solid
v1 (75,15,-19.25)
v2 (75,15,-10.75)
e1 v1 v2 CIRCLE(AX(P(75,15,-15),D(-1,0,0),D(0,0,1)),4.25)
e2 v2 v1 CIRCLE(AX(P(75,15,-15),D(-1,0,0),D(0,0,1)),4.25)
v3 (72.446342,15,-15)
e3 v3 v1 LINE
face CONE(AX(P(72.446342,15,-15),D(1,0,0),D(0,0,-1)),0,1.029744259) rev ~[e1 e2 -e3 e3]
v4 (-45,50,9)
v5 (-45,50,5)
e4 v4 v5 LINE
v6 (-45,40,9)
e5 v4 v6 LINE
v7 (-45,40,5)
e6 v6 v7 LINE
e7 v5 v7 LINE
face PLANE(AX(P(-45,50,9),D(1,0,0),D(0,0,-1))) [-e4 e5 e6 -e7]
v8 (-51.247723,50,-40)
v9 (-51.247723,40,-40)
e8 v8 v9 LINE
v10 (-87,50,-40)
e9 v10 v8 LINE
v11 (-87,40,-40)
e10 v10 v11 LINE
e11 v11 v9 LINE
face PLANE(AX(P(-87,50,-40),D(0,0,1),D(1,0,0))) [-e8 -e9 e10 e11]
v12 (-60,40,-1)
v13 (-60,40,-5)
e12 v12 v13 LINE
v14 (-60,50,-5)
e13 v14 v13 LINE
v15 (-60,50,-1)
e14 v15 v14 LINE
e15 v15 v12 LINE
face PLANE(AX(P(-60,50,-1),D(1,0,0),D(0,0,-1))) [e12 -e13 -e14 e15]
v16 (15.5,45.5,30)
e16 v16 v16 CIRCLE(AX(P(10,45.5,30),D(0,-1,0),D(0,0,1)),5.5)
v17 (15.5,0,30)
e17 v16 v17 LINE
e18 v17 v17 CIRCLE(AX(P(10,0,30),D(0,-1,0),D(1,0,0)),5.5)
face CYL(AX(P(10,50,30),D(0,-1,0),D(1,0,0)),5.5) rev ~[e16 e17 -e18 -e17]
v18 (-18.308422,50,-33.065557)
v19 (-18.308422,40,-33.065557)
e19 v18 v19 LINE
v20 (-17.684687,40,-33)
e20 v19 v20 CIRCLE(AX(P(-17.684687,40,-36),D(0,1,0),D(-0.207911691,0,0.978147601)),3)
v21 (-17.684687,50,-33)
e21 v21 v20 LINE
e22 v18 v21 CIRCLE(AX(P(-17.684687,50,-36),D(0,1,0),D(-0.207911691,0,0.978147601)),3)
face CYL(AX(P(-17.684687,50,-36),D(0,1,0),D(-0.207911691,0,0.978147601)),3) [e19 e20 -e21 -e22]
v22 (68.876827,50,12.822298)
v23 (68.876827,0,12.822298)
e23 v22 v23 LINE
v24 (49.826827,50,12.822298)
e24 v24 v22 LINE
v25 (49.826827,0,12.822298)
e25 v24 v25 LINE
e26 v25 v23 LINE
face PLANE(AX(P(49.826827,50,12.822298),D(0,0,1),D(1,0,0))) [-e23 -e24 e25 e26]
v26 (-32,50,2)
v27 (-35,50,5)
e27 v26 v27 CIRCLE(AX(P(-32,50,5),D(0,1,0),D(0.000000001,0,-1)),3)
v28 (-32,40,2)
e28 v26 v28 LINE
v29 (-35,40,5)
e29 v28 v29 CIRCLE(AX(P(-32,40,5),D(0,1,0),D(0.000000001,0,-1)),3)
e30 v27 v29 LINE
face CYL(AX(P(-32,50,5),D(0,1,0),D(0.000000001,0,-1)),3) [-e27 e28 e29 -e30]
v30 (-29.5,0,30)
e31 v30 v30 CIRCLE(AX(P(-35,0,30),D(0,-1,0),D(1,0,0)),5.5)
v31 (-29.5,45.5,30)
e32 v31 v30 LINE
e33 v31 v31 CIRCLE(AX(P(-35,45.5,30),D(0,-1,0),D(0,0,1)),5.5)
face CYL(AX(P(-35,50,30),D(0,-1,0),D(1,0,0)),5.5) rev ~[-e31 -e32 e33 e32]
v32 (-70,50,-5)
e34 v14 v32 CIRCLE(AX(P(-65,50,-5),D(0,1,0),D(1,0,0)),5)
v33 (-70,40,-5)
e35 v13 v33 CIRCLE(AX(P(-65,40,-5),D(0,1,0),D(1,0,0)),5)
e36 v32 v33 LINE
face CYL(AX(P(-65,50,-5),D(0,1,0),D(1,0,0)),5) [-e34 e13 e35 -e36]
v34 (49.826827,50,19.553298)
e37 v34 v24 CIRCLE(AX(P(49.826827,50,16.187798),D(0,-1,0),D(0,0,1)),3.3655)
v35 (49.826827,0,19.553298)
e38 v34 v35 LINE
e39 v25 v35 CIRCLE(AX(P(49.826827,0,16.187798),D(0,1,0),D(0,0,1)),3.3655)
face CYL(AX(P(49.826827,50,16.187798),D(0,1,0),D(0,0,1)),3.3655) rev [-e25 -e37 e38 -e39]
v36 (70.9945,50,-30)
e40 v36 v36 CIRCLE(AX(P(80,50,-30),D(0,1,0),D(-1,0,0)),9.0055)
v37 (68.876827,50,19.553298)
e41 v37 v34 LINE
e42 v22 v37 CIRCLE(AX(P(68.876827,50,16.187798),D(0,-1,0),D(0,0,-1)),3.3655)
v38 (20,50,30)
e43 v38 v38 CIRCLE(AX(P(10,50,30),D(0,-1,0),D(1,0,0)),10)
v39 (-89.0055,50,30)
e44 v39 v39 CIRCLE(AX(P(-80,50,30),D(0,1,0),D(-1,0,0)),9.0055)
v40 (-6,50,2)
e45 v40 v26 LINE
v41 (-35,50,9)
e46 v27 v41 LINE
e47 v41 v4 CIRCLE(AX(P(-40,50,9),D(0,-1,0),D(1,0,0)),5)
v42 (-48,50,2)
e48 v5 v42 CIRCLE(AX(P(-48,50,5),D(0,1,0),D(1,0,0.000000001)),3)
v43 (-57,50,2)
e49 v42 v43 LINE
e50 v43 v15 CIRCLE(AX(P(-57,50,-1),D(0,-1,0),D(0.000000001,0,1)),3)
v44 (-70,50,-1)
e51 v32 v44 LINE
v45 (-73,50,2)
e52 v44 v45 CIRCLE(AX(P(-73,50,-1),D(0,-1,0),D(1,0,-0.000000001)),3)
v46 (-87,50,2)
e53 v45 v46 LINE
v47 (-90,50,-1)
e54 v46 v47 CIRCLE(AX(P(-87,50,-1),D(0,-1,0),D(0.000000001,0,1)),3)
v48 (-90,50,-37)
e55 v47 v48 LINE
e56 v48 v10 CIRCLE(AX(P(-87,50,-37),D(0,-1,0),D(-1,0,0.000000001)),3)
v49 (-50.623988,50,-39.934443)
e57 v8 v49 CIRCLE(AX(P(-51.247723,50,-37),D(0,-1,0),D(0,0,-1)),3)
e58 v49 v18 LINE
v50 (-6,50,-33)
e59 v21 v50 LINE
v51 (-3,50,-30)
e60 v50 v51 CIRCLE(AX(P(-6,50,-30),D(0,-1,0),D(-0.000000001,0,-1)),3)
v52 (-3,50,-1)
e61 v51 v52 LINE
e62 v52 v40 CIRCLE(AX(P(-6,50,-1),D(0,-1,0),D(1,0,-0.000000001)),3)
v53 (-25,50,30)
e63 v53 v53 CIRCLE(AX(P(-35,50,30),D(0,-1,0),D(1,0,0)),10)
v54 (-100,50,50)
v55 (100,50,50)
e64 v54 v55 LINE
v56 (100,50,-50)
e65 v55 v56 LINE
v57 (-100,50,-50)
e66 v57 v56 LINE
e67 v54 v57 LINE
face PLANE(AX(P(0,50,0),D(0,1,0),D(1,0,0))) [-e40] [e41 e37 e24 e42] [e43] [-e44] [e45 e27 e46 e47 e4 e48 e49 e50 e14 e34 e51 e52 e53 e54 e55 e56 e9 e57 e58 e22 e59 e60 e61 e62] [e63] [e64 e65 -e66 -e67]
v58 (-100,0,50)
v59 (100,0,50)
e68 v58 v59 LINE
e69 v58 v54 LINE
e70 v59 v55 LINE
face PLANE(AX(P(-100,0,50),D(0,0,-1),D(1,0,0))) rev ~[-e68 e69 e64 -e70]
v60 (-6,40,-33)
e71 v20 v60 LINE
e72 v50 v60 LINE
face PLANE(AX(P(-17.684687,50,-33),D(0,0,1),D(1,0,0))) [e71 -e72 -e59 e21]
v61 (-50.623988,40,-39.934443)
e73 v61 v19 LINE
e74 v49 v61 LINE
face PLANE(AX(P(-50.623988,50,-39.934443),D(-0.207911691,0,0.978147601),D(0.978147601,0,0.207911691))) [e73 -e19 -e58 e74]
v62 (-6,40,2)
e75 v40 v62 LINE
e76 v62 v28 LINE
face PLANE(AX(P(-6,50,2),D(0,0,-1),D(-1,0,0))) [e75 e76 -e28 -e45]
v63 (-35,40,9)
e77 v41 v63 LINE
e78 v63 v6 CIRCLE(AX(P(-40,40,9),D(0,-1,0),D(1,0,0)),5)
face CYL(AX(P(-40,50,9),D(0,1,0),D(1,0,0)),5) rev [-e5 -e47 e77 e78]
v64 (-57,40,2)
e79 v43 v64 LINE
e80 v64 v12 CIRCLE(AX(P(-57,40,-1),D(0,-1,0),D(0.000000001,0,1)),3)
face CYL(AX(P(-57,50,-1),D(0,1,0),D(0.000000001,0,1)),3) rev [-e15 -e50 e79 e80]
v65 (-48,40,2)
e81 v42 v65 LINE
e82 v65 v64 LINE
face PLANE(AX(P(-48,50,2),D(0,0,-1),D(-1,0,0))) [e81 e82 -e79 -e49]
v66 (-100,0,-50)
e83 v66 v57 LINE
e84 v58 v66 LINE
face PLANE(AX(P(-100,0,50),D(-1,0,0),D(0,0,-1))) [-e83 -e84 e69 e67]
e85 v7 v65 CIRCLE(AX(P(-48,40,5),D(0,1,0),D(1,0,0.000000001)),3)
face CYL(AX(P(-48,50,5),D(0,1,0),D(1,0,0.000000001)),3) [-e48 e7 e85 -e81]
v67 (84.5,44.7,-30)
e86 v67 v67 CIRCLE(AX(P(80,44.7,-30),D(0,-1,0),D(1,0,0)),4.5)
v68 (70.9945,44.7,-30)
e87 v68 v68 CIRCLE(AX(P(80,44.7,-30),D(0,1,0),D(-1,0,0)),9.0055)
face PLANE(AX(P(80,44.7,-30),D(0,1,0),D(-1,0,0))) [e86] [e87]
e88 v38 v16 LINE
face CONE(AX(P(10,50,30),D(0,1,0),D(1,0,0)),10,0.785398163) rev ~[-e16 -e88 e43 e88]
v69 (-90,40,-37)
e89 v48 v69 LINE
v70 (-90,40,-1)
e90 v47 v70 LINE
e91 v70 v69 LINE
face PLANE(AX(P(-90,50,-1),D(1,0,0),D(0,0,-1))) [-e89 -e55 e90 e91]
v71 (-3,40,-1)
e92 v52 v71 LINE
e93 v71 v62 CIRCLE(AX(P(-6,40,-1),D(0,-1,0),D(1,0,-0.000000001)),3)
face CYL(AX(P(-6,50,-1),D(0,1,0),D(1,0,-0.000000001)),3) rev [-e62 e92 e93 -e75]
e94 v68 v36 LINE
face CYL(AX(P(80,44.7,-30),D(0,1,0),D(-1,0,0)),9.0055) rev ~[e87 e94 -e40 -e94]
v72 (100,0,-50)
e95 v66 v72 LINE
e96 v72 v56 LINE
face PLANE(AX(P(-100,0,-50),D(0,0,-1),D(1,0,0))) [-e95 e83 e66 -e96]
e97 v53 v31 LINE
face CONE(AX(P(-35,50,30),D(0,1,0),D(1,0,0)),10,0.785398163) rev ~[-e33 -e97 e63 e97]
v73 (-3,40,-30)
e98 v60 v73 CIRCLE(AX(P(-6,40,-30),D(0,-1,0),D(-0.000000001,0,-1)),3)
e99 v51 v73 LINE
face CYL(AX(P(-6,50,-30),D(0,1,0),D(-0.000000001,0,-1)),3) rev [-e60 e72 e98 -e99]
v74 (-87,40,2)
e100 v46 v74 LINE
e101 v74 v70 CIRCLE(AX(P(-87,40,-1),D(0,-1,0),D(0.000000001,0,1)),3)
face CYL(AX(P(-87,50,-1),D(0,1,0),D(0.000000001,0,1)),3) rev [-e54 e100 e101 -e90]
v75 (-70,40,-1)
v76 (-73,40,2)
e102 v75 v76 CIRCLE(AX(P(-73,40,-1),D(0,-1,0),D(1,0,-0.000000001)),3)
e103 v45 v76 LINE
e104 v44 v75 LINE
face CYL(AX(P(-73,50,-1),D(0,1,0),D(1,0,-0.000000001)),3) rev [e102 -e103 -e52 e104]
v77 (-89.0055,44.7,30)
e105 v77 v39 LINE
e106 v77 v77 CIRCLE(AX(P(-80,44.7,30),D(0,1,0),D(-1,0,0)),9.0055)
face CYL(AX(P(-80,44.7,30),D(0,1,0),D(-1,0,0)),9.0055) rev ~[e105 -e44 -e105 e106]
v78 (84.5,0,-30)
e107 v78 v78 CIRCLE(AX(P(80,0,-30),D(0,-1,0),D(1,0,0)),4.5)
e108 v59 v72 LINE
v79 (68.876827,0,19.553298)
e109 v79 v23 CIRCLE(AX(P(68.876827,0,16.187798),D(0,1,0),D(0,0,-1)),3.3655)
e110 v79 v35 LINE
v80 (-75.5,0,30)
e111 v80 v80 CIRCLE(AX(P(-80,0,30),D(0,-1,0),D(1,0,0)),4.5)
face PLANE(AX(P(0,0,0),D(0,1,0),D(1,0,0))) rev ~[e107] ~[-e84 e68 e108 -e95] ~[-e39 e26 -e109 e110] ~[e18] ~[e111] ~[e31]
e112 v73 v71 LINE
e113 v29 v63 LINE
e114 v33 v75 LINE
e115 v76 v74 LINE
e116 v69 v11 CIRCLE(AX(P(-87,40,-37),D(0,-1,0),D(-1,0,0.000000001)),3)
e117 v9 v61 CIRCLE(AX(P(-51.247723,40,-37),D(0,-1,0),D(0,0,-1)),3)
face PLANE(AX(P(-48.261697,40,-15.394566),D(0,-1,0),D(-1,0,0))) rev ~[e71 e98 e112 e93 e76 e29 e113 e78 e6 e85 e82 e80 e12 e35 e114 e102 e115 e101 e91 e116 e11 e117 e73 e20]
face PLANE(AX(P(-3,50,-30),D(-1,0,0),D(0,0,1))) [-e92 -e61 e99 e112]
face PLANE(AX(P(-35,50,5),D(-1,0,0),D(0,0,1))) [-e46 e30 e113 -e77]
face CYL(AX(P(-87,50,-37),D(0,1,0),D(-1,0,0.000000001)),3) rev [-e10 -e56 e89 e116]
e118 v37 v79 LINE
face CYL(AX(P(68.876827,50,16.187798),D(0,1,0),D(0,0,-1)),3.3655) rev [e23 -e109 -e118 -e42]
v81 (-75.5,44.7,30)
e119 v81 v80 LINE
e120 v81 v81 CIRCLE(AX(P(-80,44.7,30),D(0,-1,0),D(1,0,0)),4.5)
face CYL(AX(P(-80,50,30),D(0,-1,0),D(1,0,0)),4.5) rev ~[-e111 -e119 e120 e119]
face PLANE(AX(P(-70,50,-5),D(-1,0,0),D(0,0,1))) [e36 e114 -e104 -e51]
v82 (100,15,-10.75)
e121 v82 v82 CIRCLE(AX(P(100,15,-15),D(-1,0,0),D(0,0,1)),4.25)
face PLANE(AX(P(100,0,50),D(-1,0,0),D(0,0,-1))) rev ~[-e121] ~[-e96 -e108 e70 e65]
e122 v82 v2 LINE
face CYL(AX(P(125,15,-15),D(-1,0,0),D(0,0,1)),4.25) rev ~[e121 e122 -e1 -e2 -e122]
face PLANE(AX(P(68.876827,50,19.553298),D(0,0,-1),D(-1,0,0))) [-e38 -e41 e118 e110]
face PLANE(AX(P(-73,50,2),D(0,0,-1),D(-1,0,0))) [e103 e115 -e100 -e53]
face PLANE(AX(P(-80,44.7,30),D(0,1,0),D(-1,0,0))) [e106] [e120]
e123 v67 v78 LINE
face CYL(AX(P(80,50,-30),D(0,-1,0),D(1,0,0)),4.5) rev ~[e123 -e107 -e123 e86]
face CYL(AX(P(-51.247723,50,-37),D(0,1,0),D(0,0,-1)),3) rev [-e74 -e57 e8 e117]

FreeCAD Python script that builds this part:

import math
import FreeCAD as App
import Part
import Sketcher
Q = App.Units.Quantity


def add_polygon(sketch, points):
    """Adds a closed chain of lines whose ends are joined by coincident constraints."""
    first, n = sketch.GeometryCount, len(points)
    for a, b in zip(points, points[1:] + points[:1]):
        sketch.addGeometry(Part.LineSegment(App.Vector(*a, 0), App.Vector(*b, 0)), False)
    for i in range(n):
        sketch.addConstraint(Sketcher.Constraint("Coincident", first + i, 2, first + (i + 1) % n, 1))

doc = App.newDocument("Part")
body = doc.addObject("PartDesign::Body", "Body")

sketch1 = doc.addObject("Sketcher::SketchObject", "Sketch")
body.addObject(sketch1)
sketch1.AttachmentSupport = (doc.XZ_Plane, [""])
sketch1.MapMode = "FlatFace"
add_polygon(sketch1, [(-100, -50), (-100, 50), (100, 50), (100, -50)])
sketch1.addConstraint(Sketcher.Constraint("Vertical", 0))
sketch1.addConstraint(Sketcher.Constraint("Horizontal", 1))
sketch1.addConstraint(Sketcher.Constraint("Vertical", 2))
sketch1.addConstraint(Sketcher.Constraint("Horizontal", 3))
sketch1.addConstraint(Sketcher.Constraint("Symmetric", 0, 2, 2, 2, -1, 1))
sketch1.addConstraint(Sketcher.Constraint("DistanceX", 1, 1, 1, 2, Q("200 mm")))
sketch1.addConstraint(Sketcher.Constraint("DistanceY", 0, 1, 0, 2, Q("100 mm")))
pad1 = doc.addObject("PartDesign::Pad", "Pad")
body.addObject(pad1)
pad1.Profile = sketch1
pad1.Length = 50
pad1.Reversed = True

sketch2 = doc.addObject("Sketcher::SketchObject", "Sketch001")
body.addObject(sketch2)
sketch2.AttachmentSupport = (doc.YZ_Plane, [""])
sketch2.MapMode = "FlatFace"
sketch2.AttachmentOffset = App.Placement(App.Vector(0, 0, 100), App.Rotation())
sketch2.addGeometry(Part.Circle(App.Vector(15, -15, 0), App.Vector(0, 0, 1), 4.25), False)
sketch2.addConstraint(Sketcher.Constraint("Diameter", 0, Q("8.5 mm")))
sketch2.addConstraint(Sketcher.Constraint("DistanceX", -1, 1, 0, 3, Q("15 mm")))
sketch2.addConstraint(Sketcher.Constraint("DistanceY", 0, 3, -1, 1, Q("15 mm")))
doc.recompute()
hole = doc.addObject("PartDesign::Hole", "Hole")
body.addObject(hole)
hole.Profile = sketch2
hole.ThreadType = "None"
hole.Diameter = 8.5
hole.DepthType = "Dimension"
hole.Depth = 25
hole.DrillPoint = "Angled"
hole.DrillPointAngle = 118

sketch3 = doc.addObject("Sketcher::SketchObject", "Sketch002")
body.addObject(sketch3)
sketch3.AttachmentSupport = (doc.XZ_Plane, [""])
sketch3.MapMode = "FlatFace"
sketch3.AttachmentOffset = App.Placement(App.Vector(0, 0, -50), App.Rotation())
sketch3.addGeometry(Part.Circle(App.Vector(-80, 30, 0), App.Vector(0, 0, 1), 4.5), False)
sketch3.addGeometry(Part.Circle(App.Vector(80, -30, 0), App.Vector(0, 0, 1), 4.5), False)
sketch3.addConstraint(Sketcher.Constraint("Equal", 0, 1))
sketch3.addConstraint(Sketcher.Constraint("Symmetric", 0, 3, 1, 3, -1, 1))
sketch3.addConstraint(Sketcher.Constraint("Diameter", 0, Q("9 mm")))
sketch3.addConstraint(Sketcher.Constraint("DistanceX", 0, 3, -1, 1, Q("80 mm")))
sketch3.addConstraint(Sketcher.Constraint("DistanceY", -1, 1, 0, 3, Q("30 mm")))
doc.recompute()
hole2 = doc.addObject("PartDesign::Hole", "Hole001")
body.addObject(hole2)
hole2.Profile = sketch3
hole2.ThreadType = "None"
hole2.Diameter = 9
hole2.DepthType = "ThroughAll"
hole2.HoleCutType = "Counterbore"
hole2.HoleCutDiameter = 18.011
hole2.HoleCutDepth = 5.3
hole2.Reversed = True

sketch4 = doc.addObject("Sketcher::SketchObject", "Sketch003")
body.addObject(sketch4)
sketch4.AttachmentSupport = (doc.XZ_Plane, [""])
sketch4.MapMode = "FlatFace"
sketch4.AttachmentOffset = App.Placement(App.Vector(0, 0, -50), App.Rotation())
sketch4.addGeometry(Part.LineSegment(App.Vector(-51.247723, -40, 0), App.Vector(-87, -40, 0)), False)
sketch4.addGeometry(Part.ArcOfCircle(Part.Circle(App.Vector(-87, -37, 0), App.Vector(0, 0, 1), 3), math.radians(180), math.radians(270)), False)
sketch4.addGeometry(Part.LineSegment(App.Vector(-90, -37, 0), App.Vector(-90, -1, 0)), False)
sketch4.addGeometry(Part.ArcOfCircle(Part.Circle(App.Vector(-87, -1, 0), App.Vector(0, 0, 1), 3), math.radians(90), math.radians(180)), False)
sketch4.addGeometry(Part.LineSegment(App.Vector(-87, 2, 0), App.Vector(-73, 2, 0)), False)
sketch4.addGeometry(Part.ArcOfCircle(Part.Circle(App.Vector(-73, -1, 0), App.Vector(0, 0, 1), 3), math.radians(0), math.radians(90)), False)
sketch4.addGeometry(Part.LineSegment(App.Vector(-70, -1, 0), App.Vector(-70, -5, 0)), False)
sketch4.addGeometry(Part.ArcOfCircle(Part.Circle(App.Vector(-65, -5, 0), App.Vector(0, 0, 1), 5), math.radians(180), math.radians(360)), False)
sketch4.addGeometry(Part.LineSegment(App.Vector(-60, -5, 0), App.Vector(-60, -1, 0)), False)
sketch4.addGeometry(Part.ArcOfCircle(Part.Circle(App.Vector(-57, -1, 0), App.Vector(0, 0, 1), 3), math.radians(90), math.radians(180)), False)
sketch4.addGeometry(Part.LineSegment(App.Vector(-57, 2, 0), App.Vector(-48, 2, 0)), False)
sketch4.addGeometry(Part.ArcOfCircle(Part.Circle(App.Vector(-48, 5, 0), App.Vector(0, 0, 1), 3), math.radians(-90), math.radians(0)), False)
sketch4.addGeometry(Part.LineSegment(App.Vector(-45, 5, 0), App.Vector(-45, 9, 0)), False)
sketch4.addGeometry(Part.ArcOfCircle(Part.Circle(App.Vector(-40, 9, 0), App.Vector(0, 0, 1), 5), math.radians(0), math.radians(180)), False)
sketch4.addGeometry(Part.LineSegment(App.Vector(-35, 9, 0), App.Vector(-35, 5, 0)), False)
sketch4.addGeometry(Part.ArcOfCircle(Part.Circle(App.Vector(-32, 5, 0), App.Vector(0, 0, 1), 3), math.radians(180), math.radians(270)), False)
sketch4.addGeometry(Part.LineSegment(App.Vector(-32, 2, 0), App.Vector(-6, 2, 0)), False)
sketch4.addGeometry(Part.ArcOfCircle(Part.Circle(App.Vector(-6, -1, 0), App.Vector(0, 0, 1), 3), math.radians(0), math.radians(90)), False)
sketch4.addGeometry(Part.LineSegment(App.Vector(-3, -1, 0), App.Vector(-3, -30, 0)), False)
sketch4.addGeometry(Part.ArcOfCircle(Part.Circle(App.Vector(-6, -30, 0), App.Vector(0, 0, 1), 3), math.radians(-90), math.radians(0)), False)
sketch4.addGeometry(Part.LineSegment(App.Vector(-6, -33, 0), App.Vector(-17.684687, -33, 0)), False)
sketch4.addGeometry(Part.ArcOfCircle(Part.Circle(App.Vector(-17.684687, -36, 0), App.Vector(0, 0, 1), 3), math.radians(90), math.radians(102)), False)
sketch4.addGeometry(Part.LineSegment(App.Vector(-18.308422, -33.065557, 0), App.Vector(-50.623988, -39.934443, 0)), False)
sketch4.addGeometry(Part.ArcOfCircle(Part.Circle(App.Vector(-51.247723, -37, 0), App.Vector(0, 0, 1), 3), math.radians(-90), math.radians(-78)), False)
sketch4.addConstraint(Sketcher.Constraint("Tangent", 0, 2, 1, 2))
sketch4.addConstraint(Sketcher.Constraint("Tangent", 1, 1, 2, 1))
sketch4.addConstraint(Sketcher.Constraint("Tangent", 2, 2, 3, 2))
sketch4.addConstraint(Sketcher.Constraint("Tangent", 3, 1, 4, 1))
sketch4.addConstraint(Sketcher.Constraint("Tangent", 4, 2, 5, 2))
sketch4.addConstraint(Sketcher.Constraint("Tangent", 5, 1, 6, 1))
sketch4.addConstraint(Sketcher.Constraint("Tangent", 6, 2, 7, 1))
sketch4.addConstraint(Sketcher.Constraint("Tangent", 7, 2, 8, 1))
sketch4.addConstraint(Sketcher.Constraint("Tangent", 8, 2, 9, 2))
sketch4.addConstraint(Sketcher.Constraint("Tangent", 9, 1, 10, 1))
sketch4.addConstraint(Sketcher.Constraint("Tangent", 10, 2, 11, 1))
sketch4.addConstraint(Sketcher.Constraint("Tangent", 11, 2, 12, 1))
sketch4.addConstraint(Sketcher.Constraint("Tangent", 12, 2, 13, 2))
sketch4.addConstraint(Sketcher.Constraint("Tangent", 13, 1, 14, 1))
sketch4.addConstraint(Sketcher.Constraint("Tangent", 14, 2, 15, 1))
sketch4.addConstraint(Sketcher.Constraint("Tangent", 15, 2, 16, 1))
sketch4.addConstraint(Sketcher.Constraint("Tangent", 16, 2, 17, 2))
sketch4.addConstraint(Sketcher.Constraint("Tangent", 17, 1, 18, 1))
sketch4.addConstraint(Sketcher.Constraint("Tangent", 18, 2, 19, 2))
sketch4.addConstraint(Sketcher.Constraint("Tangent", 19, 1, 20, 1))
sketch4.addConstraint(Sketcher.Constraint("Tangent", 20, 2, 21, 1))
sketch4.addConstraint(Sketcher.Constraint("Tangent", 21, 2, 22, 1))
sketch4.addConstraint(Sketcher.Constraint("Tangent", 22, 2, 23, 2))
sketch4.addConstraint(Sketcher.Constraint("Tangent", 23, 1, 0, 1))
sketch4.addConstraint(Sketcher.Constraint("Horizontal", 0))
sketch4.addConstraint(Sketcher.Constraint("Vertical", 2))
sketch4.addConstraint(Sketcher.Constraint("Horizontal", 4))
sketch4.addConstraint(Sketcher.Constraint("Vertical", 6))
sketch4.addConstraint(Sketcher.Constraint("Vertical", 8))
sketch4.addConstraint(Sketcher.Constraint("Horizontal", 10))
sketch4.addConstraint(Sketcher.Constraint("Vertical", 12))
sketch4.addConstraint(Sketcher.Constraint("Vertical", 14))
sketch4.addConstraint(Sketcher.Constraint("Horizontal", 16))
sketch4.addConstraint(Sketcher.Constraint("Vertical", 18))
sketch4.addConstraint(Sketcher.Constraint("Horizontal", 20))
sketch4.addConstraint(Sketcher.Constraint("Equal", 1, 3))
sketch4.addConstraint(Sketcher.Constraint("Equal", 3, 5))
sketch4.addConstraint(Sketcher.Constraint("Equal", 5, 9))
sketch4.addConstraint(Sketcher.Constraint("Equal", 9, 11))
sketch4.addConstraint(Sketcher.Constraint("Equal", 7, 13))
sketch4.addConstraint(Sketcher.Constraint("Equal", 11, 15))
sketch4.addConstraint(Sketcher.Constraint("Equal", 15, 17))
sketch4.addConstraint(Sketcher.Constraint("Equal", 17, 19))
sketch4.addConstraint(Sketcher.Constraint("Equal", 19, 21))
sketch4.addConstraint(Sketcher.Constraint("Equal", 21, 23))
sketch4.addConstraint(Sketcher.Constraint("Horizontal", 5, 3, 9, 3))
sketch4.addConstraint(Sketcher.Constraint("Horizontal", 11, 3, 15, 3))
sketch4.addConstraint(Sketcher.Constraint("Equal", 8, 12))
sketch4.addConstraint(Sketcher.Constraint("Radius", 1, Q("3 mm")))
sketch4.addConstraint(Sketcher.Constraint("Radius", 7, Q("5 mm")))
sketch4.addConstraint(Sketcher.Constraint("DistanceX", 4, 1, 4, 2, Q("14 mm")))
sketch4.addConstraint(Sketcher.Constraint("DistanceX", 10, 1, 10, 2, Q("9 mm")))
sketch4.addConstraint(Sketcher.Constraint("DistanceX", 16, 1, 16, 2, Q("26 mm")))
sketch4.addConstraint(Sketcher.Constraint("DistanceY", 2, 1, 2, 2, Q("36 mm")))
sketch4.addConstraint(Sketcher.Constraint("DistanceY", 6, 2, 6, 1, Q("4 mm")))
sketch4.addConstraint(Sketcher.Constraint("DistanceY", 18, 2, 18, 1, Q("29 mm")))
sketch4.addConstraint(Sketcher.Constraint("Angle", 22, Q("-168 deg")))
sketch4.addConstraint(Sketcher.Constraint("DistanceX", 1, 3, -1, 1, Q("87 mm")))
sketch4.addConstraint(Sketcher.Constraint("DistanceY", 1, 3, -1, 1, Q("37 mm")))
sketch4.addConstraint(Sketcher.Constraint("DistanceX", 0, 2, 0, 1, Q("35.752277 mm")))
pocket1 = doc.addObject("PartDesign::Pocket", "Pocket")
body.addObject(pocket1)
pocket1.Profile = sketch4
pocket1.Length = 10
pocket1.Reversed = True

sketch5 = doc.addObject("Sketcher::SketchObject", "Sketch004")
body.addObject(sketch5)
sketch5.AttachmentSupport = (doc.XZ_Plane, [""])
sketch5.MapMode = "FlatFace"
sketch5.AttachmentOffset = App.Placement(App.Vector(0, 0, -50), App.Rotation())
sketch5.addGeometry(Part.Circle(App.Vector(10, 30, 0), App.Vector(0, 0, 1), 5.5), False)
sketch5.addGeometry(Part.Circle(App.Vector(-35, 30, 0), App.Vector(0, 0, 1), 5.5), False)
sketch5.addConstraint(Sketcher.Constraint("Equal", 0, 1))
sketch5.addConstraint(Sketcher.Constraint("Horizontal", 0, 3, 1, 3))
sketch5.addConstraint(Sketcher.Constraint("Diameter", 0, Q("11 mm")))
sketch5.addConstraint(Sketcher.Constraint("DistanceX", -1, 1, 0, 3, Q("10 mm")))
sketch5.addConstraint(Sketcher.Constraint("DistanceY", -1, 1, 0, 3, Q("30 mm")))
sketch5.addConstraint(Sketcher.Constraint("DistanceX", 1, 3, -1, 1, Q("35 mm")))
doc.recompute()
hole3 = doc.addObject("PartDesign::Hole", "Hole002")
body.addObject(hole3)
hole3.Profile = sketch5
hole3.ThreadType = "None"
hole3.Diameter = 11
hole3.DepthType = "ThroughAll"
hole3.HoleCutType = "Countersink"
hole3.HoleCutDiameter = 20
hole3.HoleCutCountersinkAngle = 90
hole3.Reversed = True

sketch6 = doc.addObject("Sketcher::SketchObject", "Sketch005")
body.addObject(sketch6)
sketch6.AttachmentSupport = (doc.XZ_Plane, [""])
sketch6.MapMode = "FlatFace"
sketch6.AttachmentOffset = App.Placement(App.Vector(0, 0, -50), App.Rotation())
sketch6.addGeometry(Part.LineSegment(App.Vector(49.826827, 19.553298, 0), App.Vector(68.876827, 19.553298, 0)), False)
sketch6.addGeometry(Part.ArcOfCircle(Part.Circle(App.Vector(68.876827, 16.187798, 0), App.Vector(0, 0, 1), 3.3655), math.radians(-90), math.radians(90)), False)
sketch6.addGeometry(Part.LineSegment(App.Vector(68.876827, 12.822298, 0), App.Vector(49.826827, 12.822298, 0)), False)
sketch6.addGeometry(Part.ArcOfCircle(Part.Circle(App.Vector(49.826827, 16.187798, 0), App.Vector(0, 0, 1), 3.3655), math.radians(90), math.radians(270)), False)
sketch6.addConstraint(Sketcher.Constraint("Tangent", 0, 2, 1, 2))
sketch6.addConstraint(Sketcher.Constraint("Tangent", 1, 1, 2, 1))
sketch6.addConstraint(Sketcher.Constraint("Tangent", 2, 2, 3, 2))
sketch6.addConstraint(Sketcher.Constraint("Tangent", 3, 1, 0, 1))
sketch6.addConstraint(Sketcher.Constraint("Horizontal", 0))
sketch6.addConstraint(Sketcher.Constraint("Horizontal", 2))
sketch6.addConstraint(Sketcher.Constraint("DistanceX", 0, 1, 0, 2, Q("19.05 mm")))
sketch6.addConstraint(Sketcher.Constraint("Radius", 1, Q("3.3655 mm")))
sketch6.addConstraint(Sketcher.Constraint("DistanceX", -1, 1, 1, 3, Q("68.876827 mm")))
sketch6.addConstraint(Sketcher.Constraint("DistanceY", -1, 1, 1, 3, Q("16.187798 mm")))
pocket2 = doc.addObject("PartDesign::Pocket", "Pocket001")
body.addObject(pocket2)
pocket2.Profile = sketch6
pocket2.Type = "ThroughAll"
pocket2.Reversed = True

doc.recompute()
